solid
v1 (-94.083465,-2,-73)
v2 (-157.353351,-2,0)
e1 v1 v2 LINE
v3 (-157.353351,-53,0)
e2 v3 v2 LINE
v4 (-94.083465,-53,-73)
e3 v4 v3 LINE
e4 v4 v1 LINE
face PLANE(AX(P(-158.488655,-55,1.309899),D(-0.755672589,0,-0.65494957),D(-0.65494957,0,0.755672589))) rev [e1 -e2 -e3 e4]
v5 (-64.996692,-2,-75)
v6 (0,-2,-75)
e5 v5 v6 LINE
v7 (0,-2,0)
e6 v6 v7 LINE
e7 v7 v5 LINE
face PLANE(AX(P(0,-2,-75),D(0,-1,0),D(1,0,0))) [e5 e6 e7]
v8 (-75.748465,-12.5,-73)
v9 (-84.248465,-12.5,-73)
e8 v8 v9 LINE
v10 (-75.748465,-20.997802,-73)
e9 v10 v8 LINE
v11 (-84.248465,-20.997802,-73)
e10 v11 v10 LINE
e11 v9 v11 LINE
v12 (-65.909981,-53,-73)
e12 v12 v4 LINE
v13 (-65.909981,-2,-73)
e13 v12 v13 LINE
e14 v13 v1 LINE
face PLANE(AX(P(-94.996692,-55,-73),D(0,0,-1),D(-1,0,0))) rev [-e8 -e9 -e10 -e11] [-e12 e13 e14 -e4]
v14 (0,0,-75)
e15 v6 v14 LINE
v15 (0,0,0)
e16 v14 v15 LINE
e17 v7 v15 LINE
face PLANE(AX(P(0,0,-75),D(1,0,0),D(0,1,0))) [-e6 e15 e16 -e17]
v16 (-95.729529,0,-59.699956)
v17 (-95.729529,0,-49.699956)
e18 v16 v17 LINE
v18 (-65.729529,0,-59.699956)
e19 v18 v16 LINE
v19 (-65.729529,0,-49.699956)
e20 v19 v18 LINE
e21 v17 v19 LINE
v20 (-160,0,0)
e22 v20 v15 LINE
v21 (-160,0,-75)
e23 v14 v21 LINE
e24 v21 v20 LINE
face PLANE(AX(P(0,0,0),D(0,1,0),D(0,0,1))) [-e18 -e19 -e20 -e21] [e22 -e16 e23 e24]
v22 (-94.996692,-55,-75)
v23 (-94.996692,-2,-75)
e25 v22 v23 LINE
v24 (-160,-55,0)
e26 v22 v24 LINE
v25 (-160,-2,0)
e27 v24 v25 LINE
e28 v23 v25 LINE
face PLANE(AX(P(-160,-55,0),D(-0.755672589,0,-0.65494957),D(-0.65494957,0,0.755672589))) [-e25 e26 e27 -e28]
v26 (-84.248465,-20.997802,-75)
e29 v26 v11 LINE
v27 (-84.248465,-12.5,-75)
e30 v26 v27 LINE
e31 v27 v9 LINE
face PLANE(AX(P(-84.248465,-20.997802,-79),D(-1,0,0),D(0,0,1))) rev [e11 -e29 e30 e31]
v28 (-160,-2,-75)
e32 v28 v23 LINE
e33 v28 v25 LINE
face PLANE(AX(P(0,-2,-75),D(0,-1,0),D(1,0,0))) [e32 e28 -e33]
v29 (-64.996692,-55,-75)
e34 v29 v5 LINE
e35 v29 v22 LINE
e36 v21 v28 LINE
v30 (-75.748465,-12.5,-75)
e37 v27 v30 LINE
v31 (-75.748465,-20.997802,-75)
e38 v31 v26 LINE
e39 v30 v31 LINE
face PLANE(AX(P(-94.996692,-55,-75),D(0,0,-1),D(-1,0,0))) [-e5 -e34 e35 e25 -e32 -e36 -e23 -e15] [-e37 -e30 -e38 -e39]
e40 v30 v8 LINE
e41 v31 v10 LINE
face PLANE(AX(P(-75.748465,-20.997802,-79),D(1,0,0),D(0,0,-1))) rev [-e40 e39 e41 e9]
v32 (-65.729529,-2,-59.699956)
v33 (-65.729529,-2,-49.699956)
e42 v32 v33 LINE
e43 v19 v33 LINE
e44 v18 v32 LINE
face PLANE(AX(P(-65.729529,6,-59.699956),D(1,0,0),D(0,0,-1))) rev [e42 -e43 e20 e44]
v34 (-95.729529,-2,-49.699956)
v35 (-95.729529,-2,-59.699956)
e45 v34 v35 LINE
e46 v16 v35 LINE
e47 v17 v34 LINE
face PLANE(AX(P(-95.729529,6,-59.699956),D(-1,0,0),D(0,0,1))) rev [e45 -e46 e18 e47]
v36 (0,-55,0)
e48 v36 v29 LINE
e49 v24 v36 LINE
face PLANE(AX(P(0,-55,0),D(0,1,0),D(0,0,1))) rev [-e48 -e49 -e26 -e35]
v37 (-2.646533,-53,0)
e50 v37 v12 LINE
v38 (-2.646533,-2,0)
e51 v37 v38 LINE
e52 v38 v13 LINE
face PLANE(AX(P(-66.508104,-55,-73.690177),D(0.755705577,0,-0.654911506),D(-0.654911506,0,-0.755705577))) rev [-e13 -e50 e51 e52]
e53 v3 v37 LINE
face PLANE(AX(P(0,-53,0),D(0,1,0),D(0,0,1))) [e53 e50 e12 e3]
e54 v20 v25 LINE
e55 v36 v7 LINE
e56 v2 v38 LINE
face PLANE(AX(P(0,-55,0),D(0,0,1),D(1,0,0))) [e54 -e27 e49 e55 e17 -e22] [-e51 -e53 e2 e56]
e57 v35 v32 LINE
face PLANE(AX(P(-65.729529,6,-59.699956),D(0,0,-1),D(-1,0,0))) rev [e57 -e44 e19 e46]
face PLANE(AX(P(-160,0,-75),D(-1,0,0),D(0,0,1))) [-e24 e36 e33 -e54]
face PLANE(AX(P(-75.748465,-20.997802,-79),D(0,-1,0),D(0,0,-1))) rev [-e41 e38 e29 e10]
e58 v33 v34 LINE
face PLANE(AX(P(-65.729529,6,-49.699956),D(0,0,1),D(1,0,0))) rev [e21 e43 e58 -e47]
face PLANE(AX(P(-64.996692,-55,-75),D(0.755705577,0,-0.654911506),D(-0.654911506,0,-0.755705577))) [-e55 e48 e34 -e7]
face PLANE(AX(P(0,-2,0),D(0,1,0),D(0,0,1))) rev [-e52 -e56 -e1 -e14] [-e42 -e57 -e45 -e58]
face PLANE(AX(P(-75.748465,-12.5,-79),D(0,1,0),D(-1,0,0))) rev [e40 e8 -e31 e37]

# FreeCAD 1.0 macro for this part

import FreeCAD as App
import Part
import Sketcher
from FreeCAD import Vector


def faces_at(feature, points):
    """Names of the faces that lie closest to the given points."""
    faces = feature.Shape.Faces
    near = lambda p: min(range(len(faces)), key=lambda i: faces[i].distToShape(Part.Vertex(*p))[0])
    return sorted({f"Face{near(p) + 1}" for p in points})

doc = App.newDocument("Part")
body = doc.addObject("PartDesign::Body", "Body")

sketch1 = body.newObject("Sketcher::SketchObject", "Sketch")
sketch1.AttachmentSupport = (doc.getObject("XZ_Plane"), [""])
sketch1.MapMode = "FlatFace"
sketch1.addGeometry([
    Part.LineSegment(Vector(-160, 0, 0), Vector(0, 0, 0)),
    Part.LineSegment(Vector(0, 0, 0), Vector(-65, -75, 0)),
    Part.LineSegment(Vector(-65, -75, 0), Vector(-95, -75, 0)),
    Part.LineSegment(Vector(-95, -75, 0), Vector(-160, 0, 0)),
], False)
sketch1.addConstraint([
    Sketcher.Constraint("Coincident", 0, 2, 1, 1),
    Sketcher.Constraint("Coincident", 1, 2, 2, 1),
    Sketcher.Constraint("Coincident", 2, 2, 3, 1),
    Sketcher.Constraint("Coincident", 3, 2, 0, 1),
    Sketcher.Constraint("Horizontal", 0),
    Sketcher.Constraint("Horizontal", 2),
    Sketcher.Constraint("Coincident", 0, 2, -1, 1),
    Sketcher.Constraint("DistanceX", 0, 1, 0, 2, 160.0),
    Sketcher.Constraint("DistanceX", 2, 2, 2, 1, 30.0),
    Sketcher.Constraint("DistanceY", 1, 2, -1, 1, 75.0),
    Sketcher.Constraint("Distance", 1, 99.245),
])
pad1 = body.newObject("PartDesign::Pad", "Pad")
pad1.Profile = sketch1
pad1.Length = 55
doc.recompute()

thickness = body.newObject("PartDesign::Thickness", "Thickness")
thickness.Base = (pad1, faces_at(pad1, [(-80, -27.5, 0)]))
thickness.Value = 2
thickness.Reversed = True
thickness.Join = "Intersection"

sketch2 = body.newObject("Sketcher::SketchObject", "Sketch001")
sketch2.AttachmentSupport = (doc.getObject("XZ_Plane"), [""])
sketch2.MapMode = "FlatFace"
sketch2.addGeometry([
    Part.LineSegment(Vector(-95, -57, 0), Vector(-95, -46, 0)),
    Part.LineSegment(Vector(-95, -46, 0), Vector(-65, -46, 0)),
    Part.LineSegment(Vector(-65, -46, 0), Vector(-65, -57, 0)),
    Part.LineSegment(Vector(-65, -57, 0), Vector(-95, -57, 0)),
], False)
sketch2.addConstraint([
    Sketcher.Constraint("Coincident", 0, 2, 1, 1),
    Sketcher.Constraint("Coincident", 1, 2, 2, 1),
    Sketcher.Constraint("Coincident", 2, 2, 3, 1),
    Sketcher.Constraint("Coincident", 3, 2, 0, 1),
    Sketcher.Constraint("Vertical", 0),
    Sketcher.Constraint("Horizontal", 1),
    Sketcher.Constraint("Vertical", 2),
    Sketcher.Constraint("Horizontal", 3),
    Sketcher.Constraint("DistanceX", 1, 1, 1, 2, 30.0),
    Sketcher.Constraint("DistanceY", 0, 1, 0, 2, 10.709947),
    Sketcher.Constraint("DistanceX", 0, 2, -1, 1, 95.447039),
    Sketcher.Constraint("DistanceY", 2, 2, -1, 1, 56.93425),
])
pocket1 = body.newObject("PartDesign::Pocket", "Pocket")
pocket1.Profile = sketch2
pocket1.Length = 4
pocket1.Reversed = True

sketch3 = body.newObject("Sketcher::SketchObject", "Sketch002")
sketch3.AttachmentSupport = (doc.getObject("XY_Plane"), [""])
sketch3.MapMode = "FlatFace"
sketch3.AttachmentOffset = App.Placement(Vector(0, 0, -73), App.Rotation())
sketch3.addGeometry([
    Part.LineSegment(Vector(-84, -12, 0), Vector(-84, -21, 0)),
    Part.LineSegment(Vector(-84, -21, 0), Vector(-76, -21, 0)),
    Part.LineSegment(Vector(-76, -21, 0), Vector(-76, -12, 0)),
    Part.LineSegment(Vector(-76, -12, 0), Vector(-84, -12, 0)),
], False)
sketch3.addConstraint([
    Sketcher.Constraint("Coincident", 0, 2, 1, 1),
    Sketcher.Constraint("Coincident", 1, 2, 2, 1),
    Sketcher.Constraint("Coincident", 2, 2, 3, 1),
    Sketcher.Constraint("Coincident", 3, 2, 0, 1),
    Sketcher.Constraint("Vertical", 0),
    Sketcher.Constraint("Horizontal", 1),
    Sketcher.Constraint("Vertical", 2),
    Sketcher.Constraint("Horizontal", 3),
    Sketcher.Constraint("DistanceX", 1, 1, 1, 2, 8.5),
    Sketcher.Constraint("DistanceY", 2, 2, -1, 1, 12.5),
    Sketcher.Constraint("DistanceY", 0, 2, 0, 1, 8.497802),
    Sketcher.Constraint("DistanceX", 0, 2, -1, 1, 84.248465),
])
pocket2 = body.newObject("PartDesign::Pocket", "Pocket001")
pocket2.Profile = sketch3
pocket2.Length = 6

sketch4 = body.newObject("Sketcher::SketchObject", "Sketch003")
sketch4.AttachmentSupport = (doc.getObject("XY_Plane"), [""])
sketch4.MapMode = "FlatFace"
sketch4.addGeometry([
    Part.LineSegment(Vector(-160, 0, 0), Vector(-160, -2, 0)),
    Part.LineSegment(Vector(-160, -2, 0), Vector(0, -2, 0)),
    Part.LineSegment(Vector(0, -2, 0), Vector(0, 0, 0)),
    Part.LineSegment(Vector(0, 0, 0), Vector(-160, 0, 0)),
], False)
sketch4.addConstraint([
    Sketcher.Constraint("Coincident", 0, 2, 1, 1),
    Sketcher.Constraint("Coincident", 1, 2, 2, 1),
    Sketcher.Constraint("Coincident", 2, 2, 3, 1),
    Sketcher.Constraint("Coincident", 3, 2, 0, 1),
    Sketcher.Constraint("Vertical", 0),
    Sketcher.Constraint("Horizontal", 1),
    Sketcher.Constraint("Vertical", 2),
    Sketcher.Constraint("Horizontal", 3),
    Sketcher.Constraint("Coincident", 2, 2, -1, 1),
    Sketcher.Constraint("DistanceX", 1, 1, 1, 2, 160.0),
    Sketcher.Constraint("DistanceY", 0, 2, 0, 1, 2.0),
])
pad2 = body.newObject("PartDesign::Pad", "Pad001")
pad2.Profile = sketch4
pad2.Length = 75
pad2.Reversed = True

sketch5 = body.newObject("Sketcher::SketchObject", "Sketch004")
sketch5.AttachmentSupport = (doc.getObject("XZ_Plane"), [""])
sketch5.MapMode = "FlatFace"
sketch5.AttachmentOffset = App.Placement(Vector(0, 0, 2), App.Rotation())
sketch5.addGeometry([
    Part.LineSegment(Vector(-66, -60, 0), Vector(-66, -50, 0)),
    Part.LineSegment(Vector(-66, -50, 0), Vector(-96, -50, 0)),
    Part.LineSegment(Vector(-96, -50, 0), Vector(-96, -60, 0)),
    Part.LineSegment(Vector(-96, -60, 0), Vector(-66, -60, 0)),
], False)
sketch5.addConstraint([
    Sketcher.Constraint("Coincident", 0, 2, 1, 1),
    Sketcher.Constraint("Coincident", 1, 2, 2, 1),
    Sketcher.Constraint("Coincident", 2, 2, 3, 1),
    Sketcher.Constraint("Coincident", 3, 2, 0, 1),
    Sketcher.Constraint("Vertical", 0),
    Sketcher.Constraint("Horizontal", 1),
    Sketcher.Constraint("Vertical", 2),
    Sketcher.Constraint("Horizontal", 3),
    Sketcher.Constraint("DistanceX", 1, 2, 1, 1, 30.0),
    Sketcher.Constraint("DistanceY", 0, 1, 0, 2, 10.0),
    Sketcher.Constraint("DistanceX", 0, 2, -1, 1, 65.729529),
    Sketcher.Constraint("DistanceY", 0, 2, -1, 1, 49.699956),
])
pocket3 = body.newObject("PartDesign::Pocket", "Pocket002")
pocket3.Profile = sketch5
pocket3.Length = 8

doc.recompute()
